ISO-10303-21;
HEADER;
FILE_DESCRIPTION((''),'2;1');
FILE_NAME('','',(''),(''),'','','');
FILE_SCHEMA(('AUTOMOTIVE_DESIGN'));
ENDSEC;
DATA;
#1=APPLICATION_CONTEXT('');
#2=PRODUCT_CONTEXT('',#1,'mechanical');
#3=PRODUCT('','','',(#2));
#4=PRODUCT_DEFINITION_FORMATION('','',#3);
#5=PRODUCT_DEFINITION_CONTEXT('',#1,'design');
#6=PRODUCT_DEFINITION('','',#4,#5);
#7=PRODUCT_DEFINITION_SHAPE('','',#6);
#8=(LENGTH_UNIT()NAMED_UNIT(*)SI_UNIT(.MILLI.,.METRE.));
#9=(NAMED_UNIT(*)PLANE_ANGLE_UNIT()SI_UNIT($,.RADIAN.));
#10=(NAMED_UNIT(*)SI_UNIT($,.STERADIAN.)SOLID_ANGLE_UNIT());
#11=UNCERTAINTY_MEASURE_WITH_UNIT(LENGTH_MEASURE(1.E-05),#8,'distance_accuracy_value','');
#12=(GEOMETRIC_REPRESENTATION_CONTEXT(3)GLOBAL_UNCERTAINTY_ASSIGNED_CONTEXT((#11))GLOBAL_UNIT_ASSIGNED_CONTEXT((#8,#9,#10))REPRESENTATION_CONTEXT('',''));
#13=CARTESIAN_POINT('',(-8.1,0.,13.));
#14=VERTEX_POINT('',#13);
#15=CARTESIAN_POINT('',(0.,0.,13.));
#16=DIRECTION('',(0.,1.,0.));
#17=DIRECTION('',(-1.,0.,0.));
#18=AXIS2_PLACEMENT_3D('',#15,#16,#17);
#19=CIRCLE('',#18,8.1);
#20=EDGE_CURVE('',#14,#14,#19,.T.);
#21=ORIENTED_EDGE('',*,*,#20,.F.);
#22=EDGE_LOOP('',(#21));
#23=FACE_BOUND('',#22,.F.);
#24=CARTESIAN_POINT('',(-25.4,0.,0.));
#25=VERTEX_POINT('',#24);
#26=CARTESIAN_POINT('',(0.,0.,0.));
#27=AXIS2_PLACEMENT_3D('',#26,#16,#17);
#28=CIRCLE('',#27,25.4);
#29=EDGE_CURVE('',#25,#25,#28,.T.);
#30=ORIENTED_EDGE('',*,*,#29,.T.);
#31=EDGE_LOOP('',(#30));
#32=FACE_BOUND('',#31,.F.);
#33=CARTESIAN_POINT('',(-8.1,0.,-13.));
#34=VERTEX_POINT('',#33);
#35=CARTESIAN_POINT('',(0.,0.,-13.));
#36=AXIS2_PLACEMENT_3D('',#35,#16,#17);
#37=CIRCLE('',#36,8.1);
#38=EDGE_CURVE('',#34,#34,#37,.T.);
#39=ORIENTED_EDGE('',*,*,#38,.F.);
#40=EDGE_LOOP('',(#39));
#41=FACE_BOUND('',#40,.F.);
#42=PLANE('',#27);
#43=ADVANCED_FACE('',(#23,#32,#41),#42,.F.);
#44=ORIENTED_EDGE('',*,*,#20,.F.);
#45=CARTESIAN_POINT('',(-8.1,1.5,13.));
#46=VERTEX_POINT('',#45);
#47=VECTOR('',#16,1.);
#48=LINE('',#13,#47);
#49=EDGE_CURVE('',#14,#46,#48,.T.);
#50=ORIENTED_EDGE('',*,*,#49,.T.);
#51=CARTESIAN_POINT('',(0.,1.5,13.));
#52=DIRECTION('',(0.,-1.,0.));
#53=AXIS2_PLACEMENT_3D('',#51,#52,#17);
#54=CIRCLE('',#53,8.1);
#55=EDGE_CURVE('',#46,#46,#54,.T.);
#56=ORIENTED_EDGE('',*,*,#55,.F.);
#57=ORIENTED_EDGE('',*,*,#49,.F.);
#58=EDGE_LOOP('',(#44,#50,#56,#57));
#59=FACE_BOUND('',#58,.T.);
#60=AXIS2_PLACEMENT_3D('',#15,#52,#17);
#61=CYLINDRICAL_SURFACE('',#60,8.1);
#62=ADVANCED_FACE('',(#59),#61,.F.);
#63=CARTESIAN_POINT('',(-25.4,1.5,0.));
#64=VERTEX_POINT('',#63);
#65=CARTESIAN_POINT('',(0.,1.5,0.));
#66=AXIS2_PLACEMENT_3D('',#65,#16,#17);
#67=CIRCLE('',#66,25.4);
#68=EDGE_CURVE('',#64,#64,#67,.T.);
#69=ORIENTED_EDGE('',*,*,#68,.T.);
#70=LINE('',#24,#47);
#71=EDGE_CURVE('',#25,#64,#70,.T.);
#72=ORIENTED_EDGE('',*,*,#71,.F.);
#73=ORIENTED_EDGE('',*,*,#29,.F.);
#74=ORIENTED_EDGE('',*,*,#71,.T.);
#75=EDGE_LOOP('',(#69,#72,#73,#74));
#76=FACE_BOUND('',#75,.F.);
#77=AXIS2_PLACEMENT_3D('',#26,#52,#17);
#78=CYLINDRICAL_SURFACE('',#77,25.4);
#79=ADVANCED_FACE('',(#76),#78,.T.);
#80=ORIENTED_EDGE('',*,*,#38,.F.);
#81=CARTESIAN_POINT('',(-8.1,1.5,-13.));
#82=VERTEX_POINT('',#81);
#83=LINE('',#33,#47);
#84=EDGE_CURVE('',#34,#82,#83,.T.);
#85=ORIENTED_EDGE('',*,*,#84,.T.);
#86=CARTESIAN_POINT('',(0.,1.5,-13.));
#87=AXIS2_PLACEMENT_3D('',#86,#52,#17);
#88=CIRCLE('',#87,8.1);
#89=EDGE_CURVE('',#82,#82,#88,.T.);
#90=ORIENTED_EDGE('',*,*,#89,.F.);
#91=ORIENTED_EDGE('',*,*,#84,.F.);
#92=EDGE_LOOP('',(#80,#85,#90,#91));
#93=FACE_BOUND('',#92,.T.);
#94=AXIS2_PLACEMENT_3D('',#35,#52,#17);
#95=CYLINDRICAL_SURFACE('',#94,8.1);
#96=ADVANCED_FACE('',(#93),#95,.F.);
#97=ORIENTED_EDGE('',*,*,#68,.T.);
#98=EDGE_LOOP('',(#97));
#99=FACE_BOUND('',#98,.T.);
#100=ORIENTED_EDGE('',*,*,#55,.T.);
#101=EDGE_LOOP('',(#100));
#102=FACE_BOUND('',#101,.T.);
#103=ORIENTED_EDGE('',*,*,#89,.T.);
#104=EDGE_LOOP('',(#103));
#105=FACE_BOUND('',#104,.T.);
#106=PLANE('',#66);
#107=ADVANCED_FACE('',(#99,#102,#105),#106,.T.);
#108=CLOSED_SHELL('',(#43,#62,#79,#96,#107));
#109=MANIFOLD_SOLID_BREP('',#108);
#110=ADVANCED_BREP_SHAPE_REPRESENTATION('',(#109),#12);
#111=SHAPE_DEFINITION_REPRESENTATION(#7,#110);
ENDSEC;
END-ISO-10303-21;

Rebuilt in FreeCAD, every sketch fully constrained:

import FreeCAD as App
import Part
import Sketcher
from FreeCAD import Vector

doc = App.newDocument("Part")
body = doc.addObject("PartDesign::Body", "Body")

sketch1 = doc.addObject("Sketcher::SketchObject", "Sketch")
body.addObject(sketch1)
sketch1.AttachmentSupport = (doc.XZ_Plane, [""])
sketch1.MapMode = "FlatFace"
sketch1.addGeometry(Part.Circle(Vector(0, 0, 0), Vector(0, 0, 1), 25), False)
sketch1.addGeometry(Part.Circle(Vector(0, 13, 0), Vector(0, 0, 1), 8), False)
sketch1.addGeometry(Part.Circle(Vector(0, -13, 0), Vector(0, 0, 1), 8), False)
sketch1.addConstraint(Sketcher.Constraint("Coincident", 0, 3, -1, 1))
sketch1.addConstraint(Sketcher.Constraint("Equal", 1, 2))
sketch1.addConstraint(Sketcher.Constraint("Symmetric", 1, 3, 2, 3, -1, 1))
sketch1.addConstraint(Sketcher.Constraint("PointOnObject", 1, 3, -2))
sketch1.addConstraint(Sketcher.Constraint("Diameter", 0, 50.8))
sketch1.addConstraint(Sketcher.Constraint("Diameter", 1, 16.2))
sketch1.addConstraint(Sketcher.Constraint("DistanceY", 2, 3, 1, 3, 26.0))
pad1 = doc.addObject("PartDesign::Pad", "Pad")
body.addObject(pad1)
pad1.Profile = sketch1
pad1.Length = 1.5
pad1.Reversed = True

doc.recompute()
